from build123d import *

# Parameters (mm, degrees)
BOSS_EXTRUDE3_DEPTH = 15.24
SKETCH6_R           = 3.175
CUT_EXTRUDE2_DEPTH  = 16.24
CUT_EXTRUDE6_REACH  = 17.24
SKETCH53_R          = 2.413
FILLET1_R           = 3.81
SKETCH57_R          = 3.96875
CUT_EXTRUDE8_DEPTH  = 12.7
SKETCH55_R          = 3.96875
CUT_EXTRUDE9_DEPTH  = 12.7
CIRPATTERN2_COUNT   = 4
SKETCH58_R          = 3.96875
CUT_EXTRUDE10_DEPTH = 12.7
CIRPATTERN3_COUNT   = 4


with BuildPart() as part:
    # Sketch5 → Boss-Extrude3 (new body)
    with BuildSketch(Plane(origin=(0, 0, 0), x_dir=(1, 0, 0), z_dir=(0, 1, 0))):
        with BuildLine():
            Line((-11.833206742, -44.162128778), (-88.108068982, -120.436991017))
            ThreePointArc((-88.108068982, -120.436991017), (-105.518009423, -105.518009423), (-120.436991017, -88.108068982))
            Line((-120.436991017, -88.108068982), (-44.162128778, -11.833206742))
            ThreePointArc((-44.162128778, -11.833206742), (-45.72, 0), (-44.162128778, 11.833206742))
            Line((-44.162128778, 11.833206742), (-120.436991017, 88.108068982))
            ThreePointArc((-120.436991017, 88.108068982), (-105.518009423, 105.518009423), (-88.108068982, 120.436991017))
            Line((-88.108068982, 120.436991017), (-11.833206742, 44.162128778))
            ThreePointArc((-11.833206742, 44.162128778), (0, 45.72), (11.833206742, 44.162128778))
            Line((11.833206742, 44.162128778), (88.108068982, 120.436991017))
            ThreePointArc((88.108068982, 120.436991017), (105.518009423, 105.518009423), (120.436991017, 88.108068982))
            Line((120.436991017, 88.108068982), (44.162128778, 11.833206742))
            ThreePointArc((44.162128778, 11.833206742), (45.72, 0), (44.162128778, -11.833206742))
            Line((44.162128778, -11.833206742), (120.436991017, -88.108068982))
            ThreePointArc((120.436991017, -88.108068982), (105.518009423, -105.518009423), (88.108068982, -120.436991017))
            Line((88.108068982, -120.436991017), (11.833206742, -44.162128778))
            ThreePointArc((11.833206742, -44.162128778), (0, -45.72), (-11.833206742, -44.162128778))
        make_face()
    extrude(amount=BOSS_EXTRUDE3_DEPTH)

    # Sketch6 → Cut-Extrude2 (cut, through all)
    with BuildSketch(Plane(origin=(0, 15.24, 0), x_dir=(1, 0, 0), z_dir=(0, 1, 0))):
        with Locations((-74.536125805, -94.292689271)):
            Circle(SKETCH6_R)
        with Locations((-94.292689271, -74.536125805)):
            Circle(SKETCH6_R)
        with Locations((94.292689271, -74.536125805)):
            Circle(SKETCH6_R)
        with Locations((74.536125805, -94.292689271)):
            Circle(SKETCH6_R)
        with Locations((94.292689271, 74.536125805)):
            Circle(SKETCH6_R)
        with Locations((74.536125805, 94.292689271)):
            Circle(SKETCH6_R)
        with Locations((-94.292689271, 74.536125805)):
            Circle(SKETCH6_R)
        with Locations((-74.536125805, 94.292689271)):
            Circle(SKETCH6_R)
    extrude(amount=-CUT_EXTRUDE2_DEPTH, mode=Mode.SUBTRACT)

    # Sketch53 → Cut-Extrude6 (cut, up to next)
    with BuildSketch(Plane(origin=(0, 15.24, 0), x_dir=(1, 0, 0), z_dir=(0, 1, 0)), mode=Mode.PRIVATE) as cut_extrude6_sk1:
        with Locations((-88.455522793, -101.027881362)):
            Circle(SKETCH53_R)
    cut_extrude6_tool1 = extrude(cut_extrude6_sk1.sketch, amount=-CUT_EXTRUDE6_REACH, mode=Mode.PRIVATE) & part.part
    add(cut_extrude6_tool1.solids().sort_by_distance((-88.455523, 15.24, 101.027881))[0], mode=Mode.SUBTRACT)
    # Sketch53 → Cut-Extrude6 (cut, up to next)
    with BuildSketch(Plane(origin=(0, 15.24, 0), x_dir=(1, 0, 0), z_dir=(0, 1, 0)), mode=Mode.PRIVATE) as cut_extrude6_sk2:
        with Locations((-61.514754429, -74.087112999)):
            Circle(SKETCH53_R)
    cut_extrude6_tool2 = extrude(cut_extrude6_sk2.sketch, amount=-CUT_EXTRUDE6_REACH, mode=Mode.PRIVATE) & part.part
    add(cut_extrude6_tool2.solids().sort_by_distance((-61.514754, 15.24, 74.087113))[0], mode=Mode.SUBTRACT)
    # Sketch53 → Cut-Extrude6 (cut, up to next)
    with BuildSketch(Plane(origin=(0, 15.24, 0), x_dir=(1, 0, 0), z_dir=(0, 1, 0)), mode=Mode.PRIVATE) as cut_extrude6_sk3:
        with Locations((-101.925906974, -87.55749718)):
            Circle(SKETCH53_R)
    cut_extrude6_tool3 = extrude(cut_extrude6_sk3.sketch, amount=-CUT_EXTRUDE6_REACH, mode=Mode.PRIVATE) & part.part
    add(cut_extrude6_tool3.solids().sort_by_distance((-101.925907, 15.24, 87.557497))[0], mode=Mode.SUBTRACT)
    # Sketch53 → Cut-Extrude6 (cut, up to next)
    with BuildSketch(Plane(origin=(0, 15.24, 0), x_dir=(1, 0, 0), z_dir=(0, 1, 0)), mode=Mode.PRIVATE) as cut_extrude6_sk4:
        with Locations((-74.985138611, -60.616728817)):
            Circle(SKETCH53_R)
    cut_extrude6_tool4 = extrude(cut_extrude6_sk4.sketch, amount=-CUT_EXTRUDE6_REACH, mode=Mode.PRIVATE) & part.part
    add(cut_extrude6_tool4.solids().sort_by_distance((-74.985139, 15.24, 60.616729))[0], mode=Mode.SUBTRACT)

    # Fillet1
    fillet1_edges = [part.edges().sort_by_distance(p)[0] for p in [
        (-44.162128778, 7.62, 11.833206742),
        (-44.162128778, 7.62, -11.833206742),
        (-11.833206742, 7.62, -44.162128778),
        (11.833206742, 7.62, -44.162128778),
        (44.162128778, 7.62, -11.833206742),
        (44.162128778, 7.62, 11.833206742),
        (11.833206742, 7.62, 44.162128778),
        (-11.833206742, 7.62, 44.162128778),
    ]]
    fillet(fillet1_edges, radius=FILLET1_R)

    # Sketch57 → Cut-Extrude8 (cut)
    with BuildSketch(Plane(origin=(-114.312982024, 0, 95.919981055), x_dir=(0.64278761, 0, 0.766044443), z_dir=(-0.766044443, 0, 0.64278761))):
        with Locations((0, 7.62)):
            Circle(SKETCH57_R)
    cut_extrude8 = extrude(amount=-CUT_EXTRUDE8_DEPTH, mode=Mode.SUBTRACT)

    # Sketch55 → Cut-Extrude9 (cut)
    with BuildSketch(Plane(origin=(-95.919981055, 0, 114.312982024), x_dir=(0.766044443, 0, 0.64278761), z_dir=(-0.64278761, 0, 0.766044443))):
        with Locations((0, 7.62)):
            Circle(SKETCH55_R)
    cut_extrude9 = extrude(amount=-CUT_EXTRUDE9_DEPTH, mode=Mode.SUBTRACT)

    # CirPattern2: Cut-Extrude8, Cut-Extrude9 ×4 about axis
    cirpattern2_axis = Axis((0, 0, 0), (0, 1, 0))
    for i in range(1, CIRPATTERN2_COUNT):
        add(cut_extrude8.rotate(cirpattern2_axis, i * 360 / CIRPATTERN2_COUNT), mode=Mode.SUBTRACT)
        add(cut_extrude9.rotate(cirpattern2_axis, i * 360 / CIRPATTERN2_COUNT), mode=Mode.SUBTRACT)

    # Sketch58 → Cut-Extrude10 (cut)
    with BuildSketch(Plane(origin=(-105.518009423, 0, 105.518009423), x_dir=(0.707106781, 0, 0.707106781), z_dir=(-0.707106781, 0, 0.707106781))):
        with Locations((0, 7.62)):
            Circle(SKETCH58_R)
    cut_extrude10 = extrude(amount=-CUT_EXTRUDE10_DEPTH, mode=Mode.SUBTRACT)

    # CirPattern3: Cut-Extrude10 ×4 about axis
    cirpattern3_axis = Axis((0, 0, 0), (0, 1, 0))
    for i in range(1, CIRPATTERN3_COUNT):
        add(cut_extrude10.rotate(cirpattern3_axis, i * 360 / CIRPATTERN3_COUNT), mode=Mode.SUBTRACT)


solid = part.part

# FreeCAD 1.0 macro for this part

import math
import FreeCAD as App
import Part
import Sketcher

V = App.Vector
Q = App.Units.Quantity


def edges_at(feature, points):
    """Names of the edges that pass closest to the given points."""
    edges = feature.Shape.Edges
    near = lambda p: min(range(len(edges)), key=lambda i: edges[i].distToShape(Part.Vertex(*p))[0])
    return sorted({f"Edge{near(p) + 1}" for p in points})

doc = App.newDocument("Part")
body = doc.addObject("PartDesign::Body", "Body")

sketch1 = body.newObject("Sketcher::SketchObject", "Sketch")
sketch1.AttachmentSupport = (doc.getObject("XZ_Plane"), [""])
sketch1.MapMode = "FlatFace"
sketch1.addGeometry(Part.LineSegment(V(-88, 120, 0), V(-12, 44, 0)), False)
sketch1.addGeometry(Part.ArcOfCircle(Part.Circle(V(0, 0, 0), V(0, 0, 1), 46), math.radians(75), math.radians(105)), False)
sketch1.addGeometry(Part.LineSegment(V(12, 44, 0), V(88, 120, 0)), False)
sketch1.addGeometry(Part.ArcOfCircle(Part.Circle(V(0, 0, 0), V(0, 0, 1), 149), math.radians(36.19), math.radians(53.81)), False)
sketch1.addGeometry(Part.LineSegment(V(120, 88, 0), V(44, 12, 0)), False)
sketch1.addGeometry(Part.ArcOfCircle(Part.Circle(V(0, 0, 0), V(0, 0, 1), 46), math.radians(-15), math.radians(15)), False)
sketch1.addGeometry(Part.LineSegment(V(44, -12, 0), V(120, -88, 0)), False)
sketch1.addGeometry(Part.ArcOfCircle(Part.Circle(V(0, 0, 0), V(0, 0, 1), 149), math.radians(-53.81), math.radians(-36.19)), False)
sketch1.addGeometry(Part.LineSegment(V(88, -120, 0), V(12, -44, 0)), False)
sketch1.addGeometry(Part.ArcOfCircle(Part.Circle(V(0, 0, 0), V(0, 0, 1), 46), math.radians(-105), math.radians(-75)), False)
sketch1.addGeometry(Part.LineSegment(V(-12, -44, 0), V(-88, -120, 0)), False)
sketch1.addGeometry(Part.ArcOfCircle(Part.Circle(V(0, 0, 0), V(0, 0, 1), 149), math.radians(-143.81), math.radians(-126.19)), False)
sketch1.addGeometry(Part.LineSegment(V(-120, -88, 0), V(-44, -12, 0)), False)
sketch1.addGeometry(Part.ArcOfCircle(Part.Circle(V(0, 0, 0), V(0, 0, 1), 46), math.radians(165), math.radians(195)), False)
sketch1.addGeometry(Part.LineSegment(V(-44, 12, 0), V(-120, 88, 0)), False)
sketch1.addGeometry(Part.ArcOfCircle(Part.Circle(V(0, 0, 0), V(0, 0, 1), 149), math.radians(126.19), math.radians(143.81)), False)
sketch1.addConstraint(Sketcher.Constraint("Coincident", 0, 2, 1, 2))
sketch1.addConstraint(Sketcher.Constraint("Coincident", 1, 1, 2, 1))
sketch1.addConstraint(Sketcher.Constraint("Coincident", 2, 2, 3, 2))
sketch1.addConstraint(Sketcher.Constraint("Coincident", 3, 1, 4, 1))
sketch1.addConstraint(Sketcher.Constraint("Coincident", 4, 2, 5, 2))
sketch1.addConstraint(Sketcher.Constraint("Coincident", 5, 1, 6, 1))
sketch1.addConstraint(Sketcher.Constraint("Coincident", 6, 2, 7, 2))
sketch1.addConstraint(Sketcher.Constraint("Coincident", 7, 1, 8, 1))
sketch1.addConstraint(Sketcher.Constraint("Coincident", 8, 2, 9, 2))
sketch1.addConstraint(Sketcher.Constraint("Coincident", 9, 1, 10, 1))
sketch1.addConstraint(Sketcher.Constraint("Coincident", 10, 2, 11, 2))
sketch1.addConstraint(Sketcher.Constraint("Coincident", 11, 1, 12, 1))
sketch1.addConstraint(Sketcher.Constraint("Coincident", 12, 2, 13, 2))
sketch1.addConstraint(Sketcher.Constraint("Coincident", 13, 1, 14, 1))
sketch1.addConstraint(Sketcher.Constraint("Coincident", 14, 2, 15, 2))
sketch1.addConstraint(Sketcher.Constraint("Coincident", 15, 1, 0, 1))
sketch1.addConstraint(Sketcher.Constraint("Coincident", 1, 3, -1, 1))
sketch1.addConstraint(Sketcher.Constraint("Coincident", 3, 3, -1, 1))
sketch1.addConstraint(Sketcher.Constraint("Coincident", 5, 3, -1, 1))
sketch1.addConstraint(Sketcher.Constraint("Coincident", 7, 3, -1, 1))
sketch1.addConstraint(Sketcher.Constraint("Coincident", 9, 3, -1, 1))
sketch1.addConstraint(Sketcher.Constraint("Coincident", 11, 3, -1, 1))
sketch1.addConstraint(Sketcher.Constraint("Coincident", 13, 3, -1, 1))
sketch1.addConstraint(Sketcher.Constraint("Coincident", 15, 3, -1, 1))
sketch1.addConstraint(Sketcher.Constraint("Equal", 1, 5))
sketch1.addConstraint(Sketcher.Constraint("Equal", 3, 7))
sketch1.addConstraint(Sketcher.Constraint("Equal", 5, 9))
sketch1.addConstraint(Sketcher.Constraint("Equal", 7, 11))
sketch1.addConstraint(Sketcher.Constraint("Equal", 9, 13))
sketch1.addConstraint(Sketcher.Constraint("Equal", 11, 15))
sketch1.addConstraint(Sketcher.Constraint("Perpendicular", 0, 2))
sketch1.addConstraint(Sketcher.Constraint("Parallel", 2, 4))
sketch1.addConstraint(Sketcher.Constraint("Perpendicular", 4, 6))
sketch1.addConstraint(Sketcher.Constraint("Parallel", 6, 8))
sketch1.addConstraint(Sketcher.Constraint("Perpendicular", 8, 10))
sketch1.addConstraint(Sketcher.Constraint("Parallel", 10, 12))
sketch1.addConstraint(Sketcher.Constraint("Perpendicular", 12, 14))
sketch1.addConstraint(Sketcher.Constraint("Horizontal", 0, 2, 1, 1))
sketch1.addConstraint(Sketcher.Constraint("Horizontal", 8, 2, 9, 1))
sketch1.addConstraint(Sketcher.Constraint("Horizontal", 7, 1, 10, 2))
sketch1.addConstraint(Sketcher.Constraint("Horizontal", 6, 2, 11, 1))
sketch1.addConstraint(Sketcher.Constraint("Horizontal", 4, 2, 13, 1))
sketch1.addConstraint(Sketcher.Constraint("Vertical", 4, 2, 5, 1))
sketch1.addConstraint(Sketcher.Constraint("Vertical", 2, 2, 7, 1))
sketch1.addConstraint(Sketcher.Constraint("Equal", 2, 4))
sketch1.addConstraint(Sketcher.Constraint("Radius", 1, Q("1.8 in")))
sketch1.addConstraint(Sketcher.Constraint("Radius", 3, Q("5.875 in")))
sketch1.addConstraint(Sketcher.Constraint("DistanceY", -1, 1, 0, 2, 44.162129))
pad1 = body.newObject("PartDesign::Pad", "Pad")
pad1.Profile = sketch1
pad1.Length = Q("0.6 in")
pad1.Reversed = True

sketch2 = body.newObject("Sketcher::SketchObject", "Sketch001")
sketch2.AttachmentSupport = (doc.getObject("XZ_Plane"), [""])
sketch2.MapMode = "FlatFace"
sketch2.AttachmentOffset = App.Placement(V(0, 0, -0.6 * 25.4), App.Rotation())
sketch2.addGeometry(Part.Circle(V(-74.5, 94.3, 0), V(0, 0, 1), 3.2), False)
sketch2.addGeometry(Part.Circle(V(-94.3, 74.5, 0), V(0, 0, 1), 3.2), False)
sketch2.addGeometry(Part.Circle(V(94.3, 74.5, 0), V(0, 0, 1), 3.2), False)
sketch2.addGeometry(Part.Circle(V(74.5, 94.3, 0), V(0, 0, 1), 3.2), False)
sketch2.addGeometry(Part.Circle(V(94.3, -74.5, 0), V(0, 0, 1), 3.2), False)
sketch2.addGeometry(Part.Circle(V(74.5, -94.3, 0), V(0, 0, 1), 3.2), False)
sketch2.addGeometry(Part.Circle(V(-94.3, -74.5, 0), V(0, 0, 1), 3.2), False)
sketch2.addGeometry(Part.Circle(V(-74.5, -94.3, 0), V(0, 0, 1), 3.2), False)
sketch2.addConstraint(Sketcher.Constraint("Equal", 0, 1))
sketch2.addConstraint(Sketcher.Constraint("Equal", 1, 2))
sketch2.addConstraint(Sketcher.Constraint("Equal", 2, 3))
sketch2.addConstraint(Sketcher.Constraint("Equal", 3, 4))
sketch2.addConstraint(Sketcher.Constraint("Equal", 4, 5))
sketch2.addConstraint(Sketcher.Constraint("Equal", 5, 6))
sketch2.addConstraint(Sketcher.Constraint("Equal", 6, 7))
sketch2.addConstraint(Sketcher.Constraint("Symmetric", 1, 3, 4, 3, -1, 1))
sketch2.addConstraint(Sketcher.Constraint("Symmetric", 0, 3, 5, 3, -1, 1))
sketch2.addConstraint(Sketcher.Constraint("Symmetric", 2, 3, 6, 3, -1, 1))
sketch2.addConstraint(Sketcher.Constraint("Symmetric", 3, 3, 7, 3, -1, 1))
sketch2.addConstraint(Sketcher.Constraint("Symmetric", 1, 3, 2, 3, -2))
sketch2.addConstraint(Sketcher.Constraint("Symmetric", 0, 3, 3, 3, -2))
sketch2.addConstraint(Sketcher.Constraint("Diameter", 0, Q("0.25 in")))
sketch2.addConstraint(Sketcher.Constraint("DistanceY", -1, 1, 0, 3, 94.292689))
sketch2.addConstraint(Sketcher.Constraint("DistanceX", 1, 3, -1, 1, 94.292689))
sketch2.addConstraint(Sketcher.Constraint("DistanceX", 0, 3, 3, 3, 149.072252))
sketch2.addConstraint(Sketcher.Constraint("DistanceY", 4, 3, 2, 3, 149.072252))
pocket1 = body.newObject("PartDesign::Pocket", "Pocket")
pocket1.Profile = sketch2
pocket1.Type = "ThroughAll"
pocket1.Reversed = True

sketch3 = body.newObject("Sketcher::SketchObject", "Sketch002")
sketch3.AttachmentSupport = (doc.getObject("XZ_Plane"), [""])
sketch3.MapMode = "FlatFace"
sketch3.AttachmentOffset = App.Placement(V(0, 0, -0.6 * 25.4), App.Rotation())
sketch3.addGeometry(Part.Circle(V(-88.5, 101, 0), V(0, 0, 1), 2.4), False)
sketch3.addConstraint(Sketcher.Constraint("Diameter", 0, Q("0.19 in")))
sketch3.addConstraint(Sketcher.Constraint("DistanceY", -1, 1, 0, 3, 101.027881))
sketch3.addConstraint(Sketcher.Constraint("DistanceX", 0, 3, -1, 1, 88.455523))
pocket2 = body.newObject("PartDesign::Pocket", "Pocket001")
pocket2.Profile = sketch3
pocket2.Type = "UpToFirst"
pocket2.Reversed = True

sketch4 = body.newObject("Sketcher::SketchObject", "Sketch003")
sketch4.AttachmentSupport = (doc.getObject("XZ_Plane"), [""])
sketch4.MapMode = "FlatFace"
sketch4.AttachmentOffset = App.Placement(V(0, 0, -0.6 * 25.4), App.Rotation())
sketch4.addGeometry(Part.Circle(V(-61.5, 74.1, 0), V(0, 0, 1), 2.4), False)
sketch4.addConstraint(Sketcher.Constraint("Diameter", 0, Q("0.19 in")))
sketch4.addConstraint(Sketcher.Constraint("DistanceX", 0, 3, -1, 1, 61.514754))
sketch4.addConstraint(Sketcher.Constraint("DistanceY", -1, 1, 0, 3, 74.087113))
pocket3 = body.newObject("PartDesign::Pocket", "Pocket002")
pocket3.Profile = sketch4
pocket3.Type = "UpToFirst"
pocket3.Reversed = True

sketch5 = body.newObject("Sketcher::SketchObject", "Sketch004")
sketch5.AttachmentSupport = (doc.getObject("XZ_Plane"), [""])
sketch5.MapMode = "FlatFace"
sketch5.AttachmentOffset = App.Placement(V(0, 0, -0.6 * 25.4), App.Rotation())
sketch5.addGeometry(Part.Circle(V(-101.9, 87.6, 0), V(0, 0, 1), 2.4), False)
sketch5.addConstraint(Sketcher.Constraint("Diameter", 0, Q("0.19 in")))
sketch5.addConstraint(Sketcher.Constraint("DistanceX", 0, 3, -1, 1, 101.925907))
sketch5.addConstraint(Sketcher.Constraint("DistanceY", -1, 1, 0, 3, 87.557497))
pocket4 = body.newObject("PartDesign::Pocket", "Pocket003")
pocket4.Profile = sketch5
pocket4.Type = "UpToFirst"
pocket4.Reversed = True

sketch6 = body.newObject("Sketcher::SketchObject", "Sketch005")
sketch6.AttachmentSupport = (doc.getObject("XZ_Plane"), [""])
sketch6.MapMode = "FlatFace"
sketch6.AttachmentOffset = App.Placement(V(0, 0, -0.6 * 25.4), App.Rotation())
sketch6.addGeometry(Part.Circle(V(-75, 60.6, 0), V(0, 0, 1), 2.4), False)
sketch6.addConstraint(Sketcher.Constraint("Diameter", 0, Q("0.19 in")))
sketch6.addConstraint(Sketcher.Constraint("DistanceX", 0, 3, -1, 1, 74.985139))
sketch6.addConstraint(Sketcher.Constraint("DistanceY", -1, 1, 0, 3, 60.616729))
pocket5 = body.newObject("PartDesign::Pocket", "Pocket004")
pocket5.Profile = sketch6
pocket5.Type = "UpToFirst"
pocket5.Reversed = True
doc.recompute()

fillet = body.newObject("PartDesign::Fillet", "Fillet")
fillet.Base = (pocket5, edges_at(pocket5, [
    (-44.162, 7.62, 11.833),
    (-44.162, 7.62, -11.833),
    (-11.833, 7.62, -44.162),
    (11.833, 7.62, -44.162),
    (44.162, 7.62, -11.833),
    (44.162, 7.62, 11.833),
    (11.833, 7.62, 44.162),
    (-11.833, 7.62, 44.162),
]))
fillet.Radius = Q("0.15 in")

sketch7 = body.newObject("Sketcher::SketchObject", "Sketch006")
sketch7.Placement = App.Placement(V(-114.312982, 0, 95.919981), App.Rotation(V(0.64278761, 0, 0.766044443), V(0, 1, 0), V(-0.766044443, 0, 0.64278761), "ZXY"))
sketch7.addGeometry(Part.Circle(V(0, 7.6, 0), V(0, 0, 1), 4), False)
sketch7.addConstraint(Sketcher.Constraint("PointOnObject", 0, 3, -2))
sketch7.addConstraint(Sketcher.Constraint("Diameter", 0, Q("0.3125 in")))
sketch7.addConstraint(Sketcher.Constraint("DistanceY", -1, 1, 0, 3, Q("0.3 in")))
pocket6 = body.newObject("PartDesign::Pocket", "Pocket005")
pocket6.Profile = sketch7
pocket6.Length = Q("0.5 in")

sketch8 = body.newObject("Sketcher::SketchObject", "Sketch007")
sketch8.Placement = App.Placement(V(-95.919981, 0, 114.312982), App.Rotation(V(0.766044443, 0, 0.64278761), V(0, 1, 0), V(-0.64278761, 0, 0.766044443), "ZXY"))
sketch8.addGeometry(Part.Circle(V(0, 7.6, 0), V(0, 0, 1), 4), False)
sketch8.addConstraint(Sketcher.Constraint("PointOnObject", 0, 3, -2))
sketch8.addConstraint(Sketcher.Constraint("Diameter", 0, Q("0.3125 in")))
sketch8.addConstraint(Sketcher.Constraint("DistanceY", -1, 1, 0, 3, Q("0.3 in")))
pocket7 = body.newObject("PartDesign::Pocket", "Pocket006")
pocket7.Profile = sketch8
pocket7.Length = Q("0.5 in")
doc.recompute()

polarpattern = body.newObject("PartDesign::PolarPattern", "PolarPattern")
polarpattern.Originals = [pocket6, pocket7]
polarpattern.Axis = (doc.getObject("Y_Axis"), [""])
polarpattern.Angle = 360
polarpattern.Occurrences = 4
body.Tip = polarpattern

sketch9 = body.newObject("Sketcher::SketchObject", "Sketch008")
sketch9.Placement = App.Placement(V(-105.518009, 0, 105.518009), App.Rotation(V(0.707106781, 0, 0.707106781), V(0, 0.999999999, 0), V(-0.707106781, 0, 0.707106781), "ZXY"))
sketch9.addGeometry(Part.Circle(V(0, 7.6, 0), V(0, 0, 1), 4), False)
sketch9.addConstraint(Sketcher.Constraint("PointOnObject", 0, 3, -2))
sketch9.addConstraint(Sketcher.Constraint("Diameter", 0, Q("0.3125 in")))
sketch9.addConstraint(Sketcher.Constraint("DistanceY", -1, 1, 0, 3, Q("0.3 in")))
pocket8 = body.newObject("PartDesign::Pocket", "Pocket007")
pocket8.Profile = sketch9
pocket8.Length = Q("0.5 in")
doc.recompute()

polarpattern2 = body.newObject("PartDesign::PolarPattern", "PolarPattern001")
polarpattern2.Originals = [pocket8]
polarpattern2.Axis = (doc.getObject("Y_Axis"), [""])
polarpattern2.Angle = 360
polarpattern2.Occurrences = 4
body.Tip = polarpattern2

doc.recompute()
